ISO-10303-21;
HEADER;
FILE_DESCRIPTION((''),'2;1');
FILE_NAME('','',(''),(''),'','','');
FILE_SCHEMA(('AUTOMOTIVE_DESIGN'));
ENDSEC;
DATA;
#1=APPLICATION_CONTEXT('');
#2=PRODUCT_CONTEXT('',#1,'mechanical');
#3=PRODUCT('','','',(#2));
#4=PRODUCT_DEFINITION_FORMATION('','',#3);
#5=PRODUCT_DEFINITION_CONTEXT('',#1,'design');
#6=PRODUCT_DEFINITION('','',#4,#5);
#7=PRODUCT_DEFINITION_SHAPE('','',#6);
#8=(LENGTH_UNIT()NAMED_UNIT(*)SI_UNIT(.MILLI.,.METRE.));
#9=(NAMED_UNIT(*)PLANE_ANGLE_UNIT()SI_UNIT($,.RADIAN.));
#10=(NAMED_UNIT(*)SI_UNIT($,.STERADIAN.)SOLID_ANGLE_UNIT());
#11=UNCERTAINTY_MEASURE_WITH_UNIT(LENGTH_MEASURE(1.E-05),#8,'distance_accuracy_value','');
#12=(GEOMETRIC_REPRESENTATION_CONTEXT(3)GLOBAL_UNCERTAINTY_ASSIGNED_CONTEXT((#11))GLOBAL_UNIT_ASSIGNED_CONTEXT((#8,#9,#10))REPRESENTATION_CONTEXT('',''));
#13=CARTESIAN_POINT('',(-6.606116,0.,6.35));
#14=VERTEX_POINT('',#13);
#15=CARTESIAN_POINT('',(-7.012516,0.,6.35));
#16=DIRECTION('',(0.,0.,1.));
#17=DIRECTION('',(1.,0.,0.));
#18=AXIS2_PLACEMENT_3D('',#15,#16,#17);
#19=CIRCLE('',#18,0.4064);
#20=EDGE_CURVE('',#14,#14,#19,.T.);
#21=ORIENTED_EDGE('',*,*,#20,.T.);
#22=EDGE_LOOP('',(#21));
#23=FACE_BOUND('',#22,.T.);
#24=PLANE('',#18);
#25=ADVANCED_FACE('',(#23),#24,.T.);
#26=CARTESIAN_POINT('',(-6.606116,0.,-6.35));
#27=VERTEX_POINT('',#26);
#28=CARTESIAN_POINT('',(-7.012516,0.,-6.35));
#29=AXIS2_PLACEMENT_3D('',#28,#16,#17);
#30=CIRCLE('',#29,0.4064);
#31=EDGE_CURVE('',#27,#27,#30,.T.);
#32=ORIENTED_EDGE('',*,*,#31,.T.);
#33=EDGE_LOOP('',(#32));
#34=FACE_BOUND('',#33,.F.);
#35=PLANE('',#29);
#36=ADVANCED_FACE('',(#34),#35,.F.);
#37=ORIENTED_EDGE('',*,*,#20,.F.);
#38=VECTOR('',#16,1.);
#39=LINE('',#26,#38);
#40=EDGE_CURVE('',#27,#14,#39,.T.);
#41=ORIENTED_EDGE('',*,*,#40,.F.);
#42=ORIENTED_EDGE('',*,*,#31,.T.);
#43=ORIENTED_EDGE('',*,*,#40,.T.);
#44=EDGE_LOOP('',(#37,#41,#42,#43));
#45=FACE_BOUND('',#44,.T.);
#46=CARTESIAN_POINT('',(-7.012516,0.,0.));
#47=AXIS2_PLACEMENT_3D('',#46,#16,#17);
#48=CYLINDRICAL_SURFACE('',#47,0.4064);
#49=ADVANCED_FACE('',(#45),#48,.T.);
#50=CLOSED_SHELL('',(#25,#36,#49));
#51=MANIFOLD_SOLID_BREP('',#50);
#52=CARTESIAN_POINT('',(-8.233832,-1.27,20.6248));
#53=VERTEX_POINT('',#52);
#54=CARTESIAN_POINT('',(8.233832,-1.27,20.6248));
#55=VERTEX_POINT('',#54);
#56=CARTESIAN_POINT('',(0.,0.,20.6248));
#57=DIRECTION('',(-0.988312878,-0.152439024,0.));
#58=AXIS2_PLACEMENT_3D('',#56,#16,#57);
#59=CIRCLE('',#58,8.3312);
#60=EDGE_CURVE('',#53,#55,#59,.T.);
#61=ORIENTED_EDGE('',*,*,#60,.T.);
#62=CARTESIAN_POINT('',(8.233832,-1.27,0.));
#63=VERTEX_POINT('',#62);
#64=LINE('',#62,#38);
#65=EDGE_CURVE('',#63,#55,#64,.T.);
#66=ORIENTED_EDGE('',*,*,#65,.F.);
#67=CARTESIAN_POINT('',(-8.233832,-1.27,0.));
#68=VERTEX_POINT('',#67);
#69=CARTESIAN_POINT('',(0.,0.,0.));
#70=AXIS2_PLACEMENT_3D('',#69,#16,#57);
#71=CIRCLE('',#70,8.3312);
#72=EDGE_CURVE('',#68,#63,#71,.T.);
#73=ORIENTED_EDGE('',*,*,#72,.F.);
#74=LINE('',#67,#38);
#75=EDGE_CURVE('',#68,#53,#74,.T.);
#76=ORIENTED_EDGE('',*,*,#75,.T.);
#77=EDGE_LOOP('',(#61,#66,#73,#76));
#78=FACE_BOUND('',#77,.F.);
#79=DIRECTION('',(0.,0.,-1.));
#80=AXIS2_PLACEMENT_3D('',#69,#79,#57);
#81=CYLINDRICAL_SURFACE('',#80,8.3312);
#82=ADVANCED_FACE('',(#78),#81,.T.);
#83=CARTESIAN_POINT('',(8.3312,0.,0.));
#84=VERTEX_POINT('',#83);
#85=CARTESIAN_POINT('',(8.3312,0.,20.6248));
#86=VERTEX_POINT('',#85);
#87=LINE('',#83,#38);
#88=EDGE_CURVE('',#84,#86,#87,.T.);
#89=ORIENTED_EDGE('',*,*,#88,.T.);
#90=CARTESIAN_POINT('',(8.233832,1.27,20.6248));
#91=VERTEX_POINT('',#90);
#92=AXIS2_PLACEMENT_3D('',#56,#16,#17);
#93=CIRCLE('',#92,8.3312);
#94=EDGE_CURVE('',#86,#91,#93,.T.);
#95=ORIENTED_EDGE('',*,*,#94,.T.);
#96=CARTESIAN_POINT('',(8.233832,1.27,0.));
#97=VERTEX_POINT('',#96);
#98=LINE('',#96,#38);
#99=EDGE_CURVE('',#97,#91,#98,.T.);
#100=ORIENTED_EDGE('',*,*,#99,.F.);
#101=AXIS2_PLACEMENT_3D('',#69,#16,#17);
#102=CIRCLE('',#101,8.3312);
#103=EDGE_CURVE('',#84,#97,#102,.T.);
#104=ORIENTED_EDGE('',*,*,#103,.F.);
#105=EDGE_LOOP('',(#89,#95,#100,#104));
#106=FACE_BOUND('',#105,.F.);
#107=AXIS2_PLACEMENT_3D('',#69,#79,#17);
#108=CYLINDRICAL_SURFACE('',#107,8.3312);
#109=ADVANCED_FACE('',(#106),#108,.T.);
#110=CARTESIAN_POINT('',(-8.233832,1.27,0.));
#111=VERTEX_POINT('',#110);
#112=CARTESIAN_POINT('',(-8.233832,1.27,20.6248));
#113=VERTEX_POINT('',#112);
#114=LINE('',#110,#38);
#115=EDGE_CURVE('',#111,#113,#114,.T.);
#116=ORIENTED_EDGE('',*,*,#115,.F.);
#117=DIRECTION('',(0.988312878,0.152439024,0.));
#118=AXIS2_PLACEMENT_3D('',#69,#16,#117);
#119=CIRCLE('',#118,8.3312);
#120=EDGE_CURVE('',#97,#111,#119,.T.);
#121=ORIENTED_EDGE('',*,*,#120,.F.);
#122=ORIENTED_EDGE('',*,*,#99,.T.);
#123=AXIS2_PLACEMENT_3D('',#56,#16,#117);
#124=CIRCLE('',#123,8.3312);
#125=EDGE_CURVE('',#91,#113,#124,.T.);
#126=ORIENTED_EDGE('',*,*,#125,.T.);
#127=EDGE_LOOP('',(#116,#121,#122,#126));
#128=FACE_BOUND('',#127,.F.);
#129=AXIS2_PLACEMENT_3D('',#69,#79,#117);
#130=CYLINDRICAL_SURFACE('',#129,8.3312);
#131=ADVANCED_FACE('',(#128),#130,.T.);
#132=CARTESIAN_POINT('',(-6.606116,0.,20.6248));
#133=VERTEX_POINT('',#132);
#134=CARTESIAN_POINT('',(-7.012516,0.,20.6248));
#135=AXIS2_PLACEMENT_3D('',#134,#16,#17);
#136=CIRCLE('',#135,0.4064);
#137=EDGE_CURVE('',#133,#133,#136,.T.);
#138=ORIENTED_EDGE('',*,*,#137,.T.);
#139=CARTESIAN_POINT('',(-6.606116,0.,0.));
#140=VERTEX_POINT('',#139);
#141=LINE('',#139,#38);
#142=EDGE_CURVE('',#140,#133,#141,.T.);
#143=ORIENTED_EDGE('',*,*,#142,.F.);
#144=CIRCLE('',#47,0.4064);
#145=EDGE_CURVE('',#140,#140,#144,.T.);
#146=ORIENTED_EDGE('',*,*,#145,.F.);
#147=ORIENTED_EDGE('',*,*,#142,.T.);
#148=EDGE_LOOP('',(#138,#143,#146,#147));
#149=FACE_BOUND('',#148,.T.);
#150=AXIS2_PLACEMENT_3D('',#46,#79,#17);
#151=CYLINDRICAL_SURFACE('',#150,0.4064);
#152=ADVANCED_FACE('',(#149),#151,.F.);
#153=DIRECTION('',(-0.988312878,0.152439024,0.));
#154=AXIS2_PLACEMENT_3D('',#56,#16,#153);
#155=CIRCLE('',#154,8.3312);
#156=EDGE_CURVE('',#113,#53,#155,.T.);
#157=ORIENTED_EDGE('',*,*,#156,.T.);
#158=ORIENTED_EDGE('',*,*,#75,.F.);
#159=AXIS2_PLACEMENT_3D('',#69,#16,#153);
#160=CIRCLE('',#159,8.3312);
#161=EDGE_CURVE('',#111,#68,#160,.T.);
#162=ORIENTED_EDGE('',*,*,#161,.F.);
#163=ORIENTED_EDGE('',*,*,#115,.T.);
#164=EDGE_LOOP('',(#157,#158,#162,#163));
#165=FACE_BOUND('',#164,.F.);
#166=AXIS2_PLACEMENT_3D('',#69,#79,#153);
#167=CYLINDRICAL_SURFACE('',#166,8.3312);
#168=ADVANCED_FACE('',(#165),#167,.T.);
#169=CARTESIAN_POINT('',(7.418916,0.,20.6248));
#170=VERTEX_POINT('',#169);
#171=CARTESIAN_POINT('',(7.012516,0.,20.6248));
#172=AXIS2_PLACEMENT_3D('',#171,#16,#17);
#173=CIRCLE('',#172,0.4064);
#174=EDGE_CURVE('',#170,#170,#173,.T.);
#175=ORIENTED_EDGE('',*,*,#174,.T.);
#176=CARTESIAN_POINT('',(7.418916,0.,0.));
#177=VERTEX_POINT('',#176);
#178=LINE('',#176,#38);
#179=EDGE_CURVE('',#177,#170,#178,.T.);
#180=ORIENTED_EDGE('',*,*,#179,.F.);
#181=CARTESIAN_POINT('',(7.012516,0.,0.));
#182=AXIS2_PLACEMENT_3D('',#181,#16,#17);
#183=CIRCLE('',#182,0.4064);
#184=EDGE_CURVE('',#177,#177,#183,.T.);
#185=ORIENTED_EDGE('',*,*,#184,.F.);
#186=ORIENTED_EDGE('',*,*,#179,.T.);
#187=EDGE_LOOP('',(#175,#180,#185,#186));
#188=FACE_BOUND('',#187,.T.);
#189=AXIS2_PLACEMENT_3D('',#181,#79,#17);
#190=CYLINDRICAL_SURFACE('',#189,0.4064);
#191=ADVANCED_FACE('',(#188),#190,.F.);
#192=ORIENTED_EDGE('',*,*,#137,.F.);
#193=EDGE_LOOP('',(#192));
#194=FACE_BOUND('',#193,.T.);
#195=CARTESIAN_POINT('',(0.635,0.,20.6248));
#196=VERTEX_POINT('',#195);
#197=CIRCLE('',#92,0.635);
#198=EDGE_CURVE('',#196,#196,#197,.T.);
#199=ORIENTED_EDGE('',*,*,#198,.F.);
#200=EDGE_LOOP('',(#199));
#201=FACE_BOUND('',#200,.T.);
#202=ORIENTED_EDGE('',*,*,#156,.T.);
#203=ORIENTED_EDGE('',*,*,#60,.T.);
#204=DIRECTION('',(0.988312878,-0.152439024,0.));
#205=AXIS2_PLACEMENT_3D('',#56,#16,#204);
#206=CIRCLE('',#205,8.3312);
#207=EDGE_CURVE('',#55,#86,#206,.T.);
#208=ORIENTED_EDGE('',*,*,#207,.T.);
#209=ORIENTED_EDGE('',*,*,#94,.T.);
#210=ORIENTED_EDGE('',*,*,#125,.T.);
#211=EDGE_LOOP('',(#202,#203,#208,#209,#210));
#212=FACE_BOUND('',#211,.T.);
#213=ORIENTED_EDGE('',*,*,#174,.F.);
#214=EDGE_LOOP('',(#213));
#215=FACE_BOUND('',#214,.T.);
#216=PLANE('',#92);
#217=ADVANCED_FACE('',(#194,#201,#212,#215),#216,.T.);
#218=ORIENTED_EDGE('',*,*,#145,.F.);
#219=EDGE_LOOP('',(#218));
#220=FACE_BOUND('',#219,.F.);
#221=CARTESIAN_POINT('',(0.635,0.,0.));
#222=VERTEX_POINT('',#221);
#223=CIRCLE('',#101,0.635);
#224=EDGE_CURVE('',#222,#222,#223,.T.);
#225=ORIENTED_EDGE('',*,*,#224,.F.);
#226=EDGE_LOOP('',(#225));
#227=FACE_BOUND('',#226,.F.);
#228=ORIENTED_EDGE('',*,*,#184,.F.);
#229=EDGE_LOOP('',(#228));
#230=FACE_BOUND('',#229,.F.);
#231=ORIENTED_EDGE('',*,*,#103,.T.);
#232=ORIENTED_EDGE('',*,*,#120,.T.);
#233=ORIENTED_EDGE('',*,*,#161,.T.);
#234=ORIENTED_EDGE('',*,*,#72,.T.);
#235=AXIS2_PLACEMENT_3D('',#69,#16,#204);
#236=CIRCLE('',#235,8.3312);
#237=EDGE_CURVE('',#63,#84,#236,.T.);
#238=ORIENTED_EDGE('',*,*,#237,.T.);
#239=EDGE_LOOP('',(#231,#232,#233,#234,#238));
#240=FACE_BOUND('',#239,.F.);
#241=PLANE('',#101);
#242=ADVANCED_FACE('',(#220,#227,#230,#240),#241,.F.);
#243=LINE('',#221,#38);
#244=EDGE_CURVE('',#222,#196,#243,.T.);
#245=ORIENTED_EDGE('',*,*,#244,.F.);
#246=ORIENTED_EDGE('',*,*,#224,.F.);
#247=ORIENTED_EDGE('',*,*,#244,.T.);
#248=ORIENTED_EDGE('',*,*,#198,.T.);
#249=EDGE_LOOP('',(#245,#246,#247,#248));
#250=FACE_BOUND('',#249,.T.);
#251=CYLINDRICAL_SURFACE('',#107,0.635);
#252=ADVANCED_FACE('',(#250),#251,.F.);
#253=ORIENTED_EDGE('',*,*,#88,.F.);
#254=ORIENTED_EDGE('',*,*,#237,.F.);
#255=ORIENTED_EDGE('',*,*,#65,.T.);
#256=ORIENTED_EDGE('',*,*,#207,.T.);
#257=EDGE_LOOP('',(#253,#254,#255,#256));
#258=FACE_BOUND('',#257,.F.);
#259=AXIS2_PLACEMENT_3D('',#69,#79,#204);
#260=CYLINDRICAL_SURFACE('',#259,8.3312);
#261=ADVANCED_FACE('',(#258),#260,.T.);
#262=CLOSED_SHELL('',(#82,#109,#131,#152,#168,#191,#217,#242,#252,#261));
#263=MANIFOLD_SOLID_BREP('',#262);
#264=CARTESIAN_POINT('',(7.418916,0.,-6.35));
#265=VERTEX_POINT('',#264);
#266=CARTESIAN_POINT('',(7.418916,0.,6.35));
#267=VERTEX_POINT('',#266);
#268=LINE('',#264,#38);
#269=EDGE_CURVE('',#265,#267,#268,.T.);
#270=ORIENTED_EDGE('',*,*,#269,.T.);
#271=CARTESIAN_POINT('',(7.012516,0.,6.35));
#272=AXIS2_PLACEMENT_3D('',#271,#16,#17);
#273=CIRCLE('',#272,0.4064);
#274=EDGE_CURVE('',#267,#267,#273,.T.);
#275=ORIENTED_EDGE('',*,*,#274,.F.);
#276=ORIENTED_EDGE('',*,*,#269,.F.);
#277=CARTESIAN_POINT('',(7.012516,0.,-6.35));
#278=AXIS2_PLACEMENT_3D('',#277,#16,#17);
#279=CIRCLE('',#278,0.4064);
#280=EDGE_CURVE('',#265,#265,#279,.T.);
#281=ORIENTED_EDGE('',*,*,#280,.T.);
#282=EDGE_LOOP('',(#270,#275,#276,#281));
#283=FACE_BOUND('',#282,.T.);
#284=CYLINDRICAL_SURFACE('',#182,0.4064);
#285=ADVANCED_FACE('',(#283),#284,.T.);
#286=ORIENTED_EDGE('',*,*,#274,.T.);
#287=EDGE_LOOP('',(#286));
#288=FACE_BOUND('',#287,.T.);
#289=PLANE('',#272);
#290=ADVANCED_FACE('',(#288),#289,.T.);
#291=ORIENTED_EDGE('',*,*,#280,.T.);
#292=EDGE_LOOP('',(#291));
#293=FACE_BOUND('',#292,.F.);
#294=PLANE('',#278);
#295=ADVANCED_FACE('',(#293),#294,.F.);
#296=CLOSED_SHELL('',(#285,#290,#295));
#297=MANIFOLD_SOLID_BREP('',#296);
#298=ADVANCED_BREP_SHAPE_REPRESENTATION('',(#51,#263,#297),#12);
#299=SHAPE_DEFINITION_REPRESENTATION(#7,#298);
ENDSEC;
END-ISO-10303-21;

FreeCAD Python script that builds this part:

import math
import FreeCAD as App
import Part
import Sketcher
from FreeCAD import Vector
Q = App.Units.Quantity

doc = App.newDocument("Part")
params = doc.addObject("Spreadsheet::Sheet", "Params")
for row, (alias, value) in enumerate([
    ("sketch1_diameter", "0.05 in"),
    ("sketch1_diameter2", "0.032 in"),
    ("sketch1_radius", "0.328 in"),
    ("pad1_length", "0.812 in"),
    ("sketch2_diameter", "0.032 in"),
    ("pad2_length", "0.25 in"),
    ("pad2_length2", "0.25 in"),
    ("sketch3_diameter", "0.032 in"),
    ("pad3_length", "0.25 in"),
    ("pad3_length2", "0.25 in"),
], start=1):
    params.set(f"A{row}", alias)
    params.set(f"B{row}", "=" + value)
    params.setAlias(f"B{row}", alias)

body = doc.addObject("PartDesign::Body", "Body")

# Sketch on XY plane
sketch1 = doc.addObject("Sketcher::SketchObject", "Sketch")
body.addObject(sketch1)
sketch1.AttachmentSupport = (doc.XY_Plane, [""])
sketch1.MapMode = "FlatFace"
sketch1.addGeometry(Part.ArcOfCircle(Part.Circle(Vector(0, 0, 0), Vector(0, 0, 1), 8.33), math.radians(9), math.radians(171)), False)
sketch1.addGeometry(Part.ArcOfCircle(Part.Circle(Vector(0, 0, 0), Vector(0, 0, 1), 8.33), math.radians(171.23), math.radians(188.77)), False)
sketch1.addGeometry(Part.ArcOfCircle(Part.Circle(Vector(0, 0, 0), Vector(0, 0, 1), 8.33), math.radians(-171), math.radians(-9)), False)
sketch1.addGeometry(Part.ArcOfCircle(Part.Circle(Vector(0, 0, 0), Vector(0, 0, 1), 8.33), math.radians(-8.77), math.radians(0)), False)
sketch1.addGeometry(Part.ArcOfCircle(Part.Circle(Vector(0, 0, 0), Vector(0, 0, 1), 8.33), math.radians(0), math.radians(8.77)), False)
sketch1.addGeometry(Part.Circle(Vector(-7.01, 0, 0), Vector(0, 0, 1), 0.41), False)
sketch1.addGeometry(Part.Circle(Vector(0, 0, 0), Vector(0, 0, 1), 0.64), False)
sketch1.addGeometry(Part.Circle(Vector(7.01, 0, 0), Vector(0, 0, 1), 0.41), False)
sketch1.addConstraint(Sketcher.Constraint("Tangent", 0, 2, 1, 1))
sketch1.addConstraint(Sketcher.Constraint("Tangent", 1, 2, 2, 1))
sketch1.addConstraint(Sketcher.Constraint("Tangent", 2, 2, 3, 1))
sketch1.addConstraint(Sketcher.Constraint("Tangent", 3, 2, 4, 1))
sketch1.addConstraint(Sketcher.Constraint("Tangent", 4, 2, 0, 1))
sketch1.addConstraint(Sketcher.Constraint("Coincident", 0, 3, -1, 1))
sketch1.addConstraint(Sketcher.Constraint("Coincident", 2, 3, -1, 1))
sketch1.addConstraint(Sketcher.Constraint("Coincident", 6, 3, -1, 1))
sketch1.addConstraint(Sketcher.Constraint("Equal", 5, 7))
sketch1.addConstraint(Sketcher.Constraint("Symmetric", 5, 3, 7, 3, -1, 1))
sketch1.addConstraint(Sketcher.Constraint("PointOnObject", 5, 3, -1))
sketch1.addConstraint(Sketcher.Constraint("PointOnObject", 3, 2, -1))
sketch1.addConstraint(Sketcher.Constraint("Horizontal", 1, 2, 2, 2))
sketch1.addConstraint(Sketcher.Constraint("Horizontal", 0, 2, 4, 2))
sketch1.addConstraint(Sketcher.Constraint("Vertical", 0, 2, 1, 2))
sketch1.addConstraint(Sketcher.Constraint("Diameter", 6, Q("0.05 in")))
sketch1.addConstraint(Sketcher.Constraint("Diameter", 5, Q("0.032 in")))
sketch1.addConstraint(Sketcher.Constraint("Radius", 0, Q("0.328 in")))
sketch1.addConstraint(Sketcher.Constraint("DistanceY", 1, 2, 0, 2, Q("0.1 in")))
sketch1.addConstraint(Sketcher.Constraint("DistanceX", 5, 3, -1, 1, Q("7.012516 mm")))
sketch1.setExpression("Constraints[15]", "Params.sketch1_diameter")
sketch1.setExpression("Constraints[16]", "Params.sketch1_diameter2")
sketch1.setExpression("Constraints[17]", "Params.sketch1_radius")
pad1 = doc.addObject("PartDesign::Pad", "Pad")
body.addObject(pad1)
pad1.Profile = sketch1
pad1.setExpression("Length", "Params.pad1_length")
body2 = doc.addObject("PartDesign::Body", "Body001")

# Sketch on XY plane
sketch2 = doc.addObject("Sketcher::SketchObject", "Sketch001")
body2.addObject(sketch2)
sketch2.AttachmentSupport = (doc.getObject("XY_Plane001"), [""])
sketch2.MapMode = "FlatFace"
sketch2.addGeometry(Part.Circle(Vector(-7.01, 0, 0), Vector(0, 0, 1), 0.41), False)
sketch2.addConstraint(Sketcher.Constraint("PointOnObject", 0, 3, -1))
sketch2.addConstraint(Sketcher.Constraint("Diameter", 0, Q("0.032 in")))
sketch2.addConstraint(Sketcher.Constraint("DistanceX", 0, 3, -1, 1, Q("7.012516 mm")))
sketch2.setExpression("Constraints[1]", "Params.sketch2_diameter")
pad2 = doc.addObject("PartDesign::Pad", "Pad001")
body2.addObject(pad2)
pad2.Profile = sketch2
pad2.Type = "TwoLengths"
pad2.setExpression("Length", "Params.pad2_length")
pad2.setExpression("Length2", "Params.pad2_length2")
body3 = doc.addObject("PartDesign::Body", "Body002")

# Sketch on XY plane
sketch3 = doc.addObject("Sketcher::SketchObject", "Sketch002")
body3.addObject(sketch3)
sketch3.AttachmentSupport = (doc.getObject("XY_Plane002"), [""])
sketch3.MapMode = "FlatFace"
sketch3.addGeometry(Part.Circle(Vector(7.01, 0, 0), Vector(0, 0, 1), 0.41), False)
sketch3.addConstraint(Sketcher.Constraint("PointOnObject", 0, 3, -1))
sketch3.addConstraint(Sketcher.Constraint("Diameter", 0, Q("0.032 in")))
sketch3.addConstraint(Sketcher.Constraint("DistanceX", -1, 1, 0, 3, Q("7.012516 mm")))
sketch3.setExpression("Constraints[1]", "Params.sketch3_diameter")
pad3 = doc.addObject("PartDesign::Pad", "Pad002")
body3.addObject(pad3)
pad3.Profile = sketch3
pad3.Type = "TwoLengths"
pad3.setExpression("Length", "Params.pad3_length")
pad3.setExpression("Length2", "Params.pad3_length2")

doc.recompute()
